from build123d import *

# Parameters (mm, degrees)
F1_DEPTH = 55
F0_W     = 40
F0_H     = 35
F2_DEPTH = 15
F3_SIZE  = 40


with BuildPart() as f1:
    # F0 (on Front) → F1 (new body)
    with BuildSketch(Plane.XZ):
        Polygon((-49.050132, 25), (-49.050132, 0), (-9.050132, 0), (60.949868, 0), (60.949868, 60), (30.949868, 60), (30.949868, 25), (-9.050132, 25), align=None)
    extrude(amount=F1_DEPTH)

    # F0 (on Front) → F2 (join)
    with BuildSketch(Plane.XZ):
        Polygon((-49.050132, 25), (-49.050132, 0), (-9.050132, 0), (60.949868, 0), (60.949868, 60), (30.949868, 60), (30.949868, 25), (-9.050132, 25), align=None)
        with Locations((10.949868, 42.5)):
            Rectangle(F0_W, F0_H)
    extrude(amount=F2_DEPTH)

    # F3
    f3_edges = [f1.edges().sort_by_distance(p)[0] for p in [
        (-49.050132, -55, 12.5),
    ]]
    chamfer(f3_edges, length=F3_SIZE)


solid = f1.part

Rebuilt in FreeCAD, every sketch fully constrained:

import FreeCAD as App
import Part
import Sketcher

V = App.Vector


def edges_at(feature, points):
    """Names of the edges that pass closest to the given points."""
    edges = feature.Shape.Edges
    near = lambda p: min(range(len(edges)), key=lambda i: edges[i].distToShape(Part.Vertex(*p))[0])
    return sorted({f"Edge{near(p) + 1}" for p in points})

doc = App.newDocument("Part")
body = doc.addObject("PartDesign::Body", "Body")

sketch1 = body.newObject("Sketcher::SketchObject", "Sketch")
sketch1.AttachmentSupport = (doc.getObject("XZ_Plane"), [""])
sketch1.MapMode = "FlatFace"
sketch1.addGeometry(Part.LineSegment(V(-49, 25, 0), V(-49, 0, 0)), False)
sketch1.addGeometry(Part.LineSegment(V(-49, 0, 0), V(61, 0, 0)), False)
sketch1.addGeometry(Part.LineSegment(V(61, 0, 0), V(61, 60, 0)), False)
sketch1.addGeometry(Part.LineSegment(V(61, 60, 0), V(31, 60, 0)), False)
sketch1.addGeometry(Part.LineSegment(V(31, 60, 0), V(31, 25, 0)), False)
sketch1.addGeometry(Part.LineSegment(V(31, 25, 0), V(-49, 25, 0)), False)
sketch1.addConstraint(Sketcher.Constraint("Coincident", 0, 2, 1, 1))
sketch1.addConstraint(Sketcher.Constraint("Coincident", 1, 2, 2, 1))
sketch1.addConstraint(Sketcher.Constraint("Coincident", 2, 2, 3, 1))
sketch1.addConstraint(Sketcher.Constraint("Coincident", 3, 2, 4, 1))
sketch1.addConstraint(Sketcher.Constraint("Coincident", 4, 2, 5, 1))
sketch1.addConstraint(Sketcher.Constraint("Coincident", 5, 2, 0, 1))
sketch1.addConstraint(Sketcher.Constraint("Vertical", 0))
sketch1.addConstraint(Sketcher.Constraint("Horizontal", 1))
sketch1.addConstraint(Sketcher.Constraint("Vertical", 2))
sketch1.addConstraint(Sketcher.Constraint("Horizontal", 3))
sketch1.addConstraint(Sketcher.Constraint("Vertical", 4))
sketch1.addConstraint(Sketcher.Constraint("Horizontal", 5))
sketch1.addConstraint(Sketcher.Constraint("PointOnObject", 0, 2, -1))
sketch1.addConstraint(Sketcher.Constraint("DistanceX", 1, 1, 1, 2, 110.0))
sketch1.addConstraint(Sketcher.Constraint("DistanceX", 3, 2, 3, 1, 30.0))
sketch1.addConstraint(Sketcher.Constraint("DistanceY", 0, 2, 0, 1, 25.0))
sketch1.addConstraint(Sketcher.Constraint("DistanceY", 2, 1, 2, 2, 60.0))
sketch1.addConstraint(Sketcher.Constraint("DistanceX", 0, 2, -1, 1, 49.050132))
pad1 = body.newObject("PartDesign::Pad", "Pad")
pad1.Profile = sketch1
pad1.Length = 55

sketch2 = body.newObject("Sketcher::SketchObject", "Sketch001")
sketch2.AttachmentSupport = (doc.getObject("XZ_Plane"), [""])
sketch2.MapMode = "FlatFace"
sketch2.addGeometry(Part.LineSegment(V(-49, 25, 0), V(-49, 0, 0)), False)
sketch2.addGeometry(Part.LineSegment(V(-49, 0, 0), V(61, 0, 0)), False)
sketch2.addGeometry(Part.LineSegment(V(61, 0, 0), V(61, 60, 0)), False)
sketch2.addGeometry(Part.LineSegment(V(61, 60, 0), V(-9, 60, 0)), False)
sketch2.addGeometry(Part.LineSegment(V(-9, 60, 0), V(-9, 25, 0)), False)
sketch2.addGeometry(Part.LineSegment(V(-9, 25, 0), V(-49, 25, 0)), False)
sketch2.addConstraint(Sketcher.Constraint("Coincident", 0, 2, 1, 1))
sketch2.addConstraint(Sketcher.Constraint("Coincident", 1, 2, 2, 1))
sketch2.addConstraint(Sketcher.Constraint("Coincident", 2, 2, 3, 1))
sketch2.addConstraint(Sketcher.Constraint("Coincident", 3, 2, 4, 1))
sketch2.addConstraint(Sketcher.Constraint("Coincident", 4, 2, 5, 1))
sketch2.addConstraint(Sketcher.Constraint("Coincident", 5, 2, 0, 1))
sketch2.addConstraint(Sketcher.Constraint("Vertical", 0))
sketch2.addConstraint(Sketcher.Constraint("Horizontal", 1))
sketch2.addConstraint(Sketcher.Constraint("Vertical", 2))
sketch2.addConstraint(Sketcher.Constraint("Horizontal", 3))
sketch2.addConstraint(Sketcher.Constraint("Vertical", 4))
sketch2.addConstraint(Sketcher.Constraint("Horizontal", 5))
sketch2.addConstraint(Sketcher.Constraint("PointOnObject", 0, 2, -1))
sketch2.addConstraint(Sketcher.Constraint("DistanceX", 1, 1, 1, 2, 110.0))
sketch2.addConstraint(Sketcher.Constraint("DistanceX", 3, 2, 3, 1, 70.0))
sketch2.addConstraint(Sketcher.Constraint("DistanceY", 0, 2, 0, 1, 25.0))
sketch2.addConstraint(Sketcher.Constraint("DistanceY", 2, 1, 2, 2, 60.0))
sketch2.addConstraint(Sketcher.Constraint("DistanceX", 0, 2, -1, 1, 49.050132))
pad2 = body.newObject("PartDesign::Pad", "Pad001")
pad2.Profile = sketch2
pad2.Length = 15
doc.recompute()

chamfer = body.newObject("PartDesign::Chamfer", "Chamfer")
chamfer.Base = (pad2, edges_at(pad2, [(-49.05, -55, 12.5)]))
chamfer.Size = 40

doc.recompute()
